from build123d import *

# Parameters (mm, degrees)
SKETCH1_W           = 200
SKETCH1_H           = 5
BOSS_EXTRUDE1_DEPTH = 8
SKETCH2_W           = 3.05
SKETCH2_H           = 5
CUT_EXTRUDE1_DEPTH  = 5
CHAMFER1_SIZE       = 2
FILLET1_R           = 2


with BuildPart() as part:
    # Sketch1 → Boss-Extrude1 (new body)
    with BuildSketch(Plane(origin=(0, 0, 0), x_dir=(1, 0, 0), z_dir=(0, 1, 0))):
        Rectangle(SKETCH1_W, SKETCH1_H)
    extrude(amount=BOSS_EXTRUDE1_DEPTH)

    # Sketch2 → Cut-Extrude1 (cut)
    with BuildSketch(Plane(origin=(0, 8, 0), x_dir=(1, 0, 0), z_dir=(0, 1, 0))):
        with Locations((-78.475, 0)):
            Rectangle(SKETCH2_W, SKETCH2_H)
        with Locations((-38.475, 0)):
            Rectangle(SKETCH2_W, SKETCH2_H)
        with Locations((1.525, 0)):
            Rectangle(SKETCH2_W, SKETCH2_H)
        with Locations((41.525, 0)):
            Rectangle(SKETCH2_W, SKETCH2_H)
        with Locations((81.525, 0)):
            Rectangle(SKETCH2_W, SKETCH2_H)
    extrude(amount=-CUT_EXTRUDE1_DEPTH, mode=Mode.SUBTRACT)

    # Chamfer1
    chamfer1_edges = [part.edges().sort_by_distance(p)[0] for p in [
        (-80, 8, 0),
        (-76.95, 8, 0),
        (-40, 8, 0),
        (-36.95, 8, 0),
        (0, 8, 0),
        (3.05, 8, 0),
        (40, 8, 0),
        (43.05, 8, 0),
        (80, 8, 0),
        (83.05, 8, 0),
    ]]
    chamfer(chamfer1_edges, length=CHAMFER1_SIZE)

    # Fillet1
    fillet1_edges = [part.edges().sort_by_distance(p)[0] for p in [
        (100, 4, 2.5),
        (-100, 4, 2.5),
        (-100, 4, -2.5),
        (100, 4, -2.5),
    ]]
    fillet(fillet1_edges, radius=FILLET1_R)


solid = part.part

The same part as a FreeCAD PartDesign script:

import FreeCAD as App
import Part
import Sketcher
Q = App.Units.Quantity


def edges_at(feature, points):
    """Names of the edges that pass closest to the given points."""
    edges = feature.Shape.Edges
    near = lambda p: min(range(len(edges)), key=lambda i: edges[i].distToShape(Part.Vertex(*p))[0])
    return sorted({f"Edge{near(p) + 1}" for p in points})


def add_polygon(sketch, points):
    """Adds a closed chain of lines whose ends are joined by coincident constraints."""
    first, n = sketch.GeometryCount, len(points)
    for a, b in zip(points, points[1:] + points[:1]):
        sketch.addGeometry(Part.LineSegment(App.Vector(*a, 0), App.Vector(*b, 0)), False)
    for i in range(n):
        sketch.addConstraint(Sketcher.Constraint("Coincident", first + i, 2, first + (i + 1) % n, 1))

doc = App.newDocument("Part")
body = doc.addObject("PartDesign::Body", "Body")

sketch1 = body.newObject("Sketcher::SketchObject", "Sketch")
sketch1.AttachmentSupport = (doc.getObject("XZ_Plane"), [""])
sketch1.MapMode = "FlatFace"
add_polygon(sketch1, [(-100, -2), (-100, 2), (100, 2), (100, -2)])
sketch1.addConstraint(Sketcher.Constraint("Vertical", 0))
sketch1.addConstraint(Sketcher.Constraint("Horizontal", 1))
sketch1.addConstraint(Sketcher.Constraint("Vertical", 2))
sketch1.addConstraint(Sketcher.Constraint("Horizontal", 3))
sketch1.addConstraint(Sketcher.Constraint("Symmetric", 0, 2, 2, 2, -1, 1))
sketch1.addConstraint(Sketcher.Constraint("DistanceX", 1, 1, 1, 2, Q("200 mm")))
sketch1.addConstraint(Sketcher.Constraint("DistanceY", 0, 1, 0, 2, Q("5 mm")))
pad1 = body.newObject("PartDesign::Pad", "Pad")
pad1.Profile = sketch1
pad1.Length = 8
pad1.Reversed = True

sketch2 = body.newObject("Sketcher::SketchObject", "Sketch001")
sketch2.AttachmentSupport = (doc.getObject("XZ_Plane"), [""])
sketch2.MapMode = "FlatFace"
sketch2.AttachmentOffset = App.Placement(App.Vector(0, 0, -8), App.Rotation())
add_polygon(sketch2, [(-80, -2.5), (-80, 2.5), (-77, 2.5), (-77, -2.5)])
add_polygon(sketch2, [(-40, -2.5), (-40, 2.5), (-37, 2.5), (-37, -2.5)])
add_polygon(sketch2, [(0, -2.5), (0, 2.5), (3, 2.5), (3, -2.5)])
add_polygon(sketch2, [(40, -2.5), (40, 2.5), (43, 2.5), (43, -2.5)])
add_polygon(sketch2, [(80, -2.5), (80, 2.5), (83, 2.5), (83, -2.5)])
sketch2.addConstraint(Sketcher.Constraint("Vertical", 0))
sketch2.addConstraint(Sketcher.Constraint("Horizontal", 1))
sketch2.addConstraint(Sketcher.Constraint("Vertical", 2))
sketch2.addConstraint(Sketcher.Constraint("Horizontal", 3))
sketch2.addConstraint(Sketcher.Constraint("Vertical", 4))
sketch2.addConstraint(Sketcher.Constraint("Horizontal", 5))
sketch2.addConstraint(Sketcher.Constraint("Vertical", 6))
sketch2.addConstraint(Sketcher.Constraint("Horizontal", 7))
sketch2.addConstraint(Sketcher.Constraint("Vertical", 8))
sketch2.addConstraint(Sketcher.Constraint("Horizontal", 9))
sketch2.addConstraint(Sketcher.Constraint("Vertical", 10))
sketch2.addConstraint(Sketcher.Constraint("Horizontal", 11))
sketch2.addConstraint(Sketcher.Constraint("Vertical", 12))
sketch2.addConstraint(Sketcher.Constraint("Horizontal", 13))
sketch2.addConstraint(Sketcher.Constraint("Vertical", 14))
sketch2.addConstraint(Sketcher.Constraint("Horizontal", 15))
sketch2.addConstraint(Sketcher.Constraint("Vertical", 16))
sketch2.addConstraint(Sketcher.Constraint("Horizontal", 17))
sketch2.addConstraint(Sketcher.Constraint("Vertical", 18))
sketch2.addConstraint(Sketcher.Constraint("Horizontal", 19))
sketch2.addConstraint(Sketcher.Constraint("Symmetric", 8, 2, 11, 2, -1, 1))
sketch2.addConstraint(Sketcher.Constraint("Symmetric", 7, 2, 12, 2, -1, 1))
sketch2.addConstraint(Sketcher.Constraint("Symmetric", 3, 2, 16, 2, -1, 1))
sketch2.addConstraint(Sketcher.Constraint("Horizontal", 1, 2, 4, 2))
sketch2.addConstraint(Sketcher.Constraint("Horizontal", 3, 2, 6, 2))
sketch2.addConstraint(Sketcher.Constraint("Horizontal", 5, 2, 8, 2))
sketch2.addConstraint(Sketcher.Constraint("Horizontal", 7, 2, 10, 2))
sketch2.addConstraint(Sketcher.Constraint("Horizontal", 11, 2, 14, 2))
sketch2.addConstraint(Sketcher.Constraint("Horizontal", 15, 2, 18, 2))
sketch2.addConstraint(Sketcher.Constraint("Equal", 3, 5))
sketch2.addConstraint(Sketcher.Constraint("Equal", 7, 9))
sketch2.addConstraint(Sketcher.Constraint("Equal", 11, 13))
sketch2.addConstraint(Sketcher.Constraint("Equal", 15, 17))
sketch2.addConstraint(Sketcher.Constraint("DistanceY", 0, 1, 0, 2, Q("5 mm")))
sketch2.addConstraint(Sketcher.Constraint("DistanceX", 0, 2, -1, 1, Q("80 mm")))
sketch2.addConstraint(Sketcher.Constraint("DistanceX", 4, 2, -1, 1, Q("40 mm")))
sketch2.addConstraint(Sketcher.Constraint("DistanceX", 1, 1, 1, 2, Q("3.05 mm")))
pocket1 = body.newObject("PartDesign::Pocket", "Pocket")
pocket1.Profile = sketch2
pocket1.Length = 5
pocket1.Reversed = True
doc.recompute()

chamfer = body.newObject("PartDesign::Chamfer", "Chamfer")
chamfer.Base = (pocket1, edges_at(pocket1, [
    (-80, 8, 0),
    (-76.95, 8, 0),
    (-40, 8, 0),
    (-36.95, 8, 0),
    (0, 8, 0),
    (3.05, 8, 0),
    (40, 8, 0),
    (43.05, 8, 0),
    (80, 8, 0),
    (83.05, 8, 0),
]))
chamfer.Size = 2
doc.recompute()

fillet = body.newObject("PartDesign::Fillet", "Fillet")
fillet.Base = (chamfer, edges_at(chamfer, [
    (100, 4, 2.5),
    (-100, 4, 2.5),
    (-100, 4, -2.5),
    (100, 4, -2.5),
]))
fillet.Radius = 2

doc.recompute()
